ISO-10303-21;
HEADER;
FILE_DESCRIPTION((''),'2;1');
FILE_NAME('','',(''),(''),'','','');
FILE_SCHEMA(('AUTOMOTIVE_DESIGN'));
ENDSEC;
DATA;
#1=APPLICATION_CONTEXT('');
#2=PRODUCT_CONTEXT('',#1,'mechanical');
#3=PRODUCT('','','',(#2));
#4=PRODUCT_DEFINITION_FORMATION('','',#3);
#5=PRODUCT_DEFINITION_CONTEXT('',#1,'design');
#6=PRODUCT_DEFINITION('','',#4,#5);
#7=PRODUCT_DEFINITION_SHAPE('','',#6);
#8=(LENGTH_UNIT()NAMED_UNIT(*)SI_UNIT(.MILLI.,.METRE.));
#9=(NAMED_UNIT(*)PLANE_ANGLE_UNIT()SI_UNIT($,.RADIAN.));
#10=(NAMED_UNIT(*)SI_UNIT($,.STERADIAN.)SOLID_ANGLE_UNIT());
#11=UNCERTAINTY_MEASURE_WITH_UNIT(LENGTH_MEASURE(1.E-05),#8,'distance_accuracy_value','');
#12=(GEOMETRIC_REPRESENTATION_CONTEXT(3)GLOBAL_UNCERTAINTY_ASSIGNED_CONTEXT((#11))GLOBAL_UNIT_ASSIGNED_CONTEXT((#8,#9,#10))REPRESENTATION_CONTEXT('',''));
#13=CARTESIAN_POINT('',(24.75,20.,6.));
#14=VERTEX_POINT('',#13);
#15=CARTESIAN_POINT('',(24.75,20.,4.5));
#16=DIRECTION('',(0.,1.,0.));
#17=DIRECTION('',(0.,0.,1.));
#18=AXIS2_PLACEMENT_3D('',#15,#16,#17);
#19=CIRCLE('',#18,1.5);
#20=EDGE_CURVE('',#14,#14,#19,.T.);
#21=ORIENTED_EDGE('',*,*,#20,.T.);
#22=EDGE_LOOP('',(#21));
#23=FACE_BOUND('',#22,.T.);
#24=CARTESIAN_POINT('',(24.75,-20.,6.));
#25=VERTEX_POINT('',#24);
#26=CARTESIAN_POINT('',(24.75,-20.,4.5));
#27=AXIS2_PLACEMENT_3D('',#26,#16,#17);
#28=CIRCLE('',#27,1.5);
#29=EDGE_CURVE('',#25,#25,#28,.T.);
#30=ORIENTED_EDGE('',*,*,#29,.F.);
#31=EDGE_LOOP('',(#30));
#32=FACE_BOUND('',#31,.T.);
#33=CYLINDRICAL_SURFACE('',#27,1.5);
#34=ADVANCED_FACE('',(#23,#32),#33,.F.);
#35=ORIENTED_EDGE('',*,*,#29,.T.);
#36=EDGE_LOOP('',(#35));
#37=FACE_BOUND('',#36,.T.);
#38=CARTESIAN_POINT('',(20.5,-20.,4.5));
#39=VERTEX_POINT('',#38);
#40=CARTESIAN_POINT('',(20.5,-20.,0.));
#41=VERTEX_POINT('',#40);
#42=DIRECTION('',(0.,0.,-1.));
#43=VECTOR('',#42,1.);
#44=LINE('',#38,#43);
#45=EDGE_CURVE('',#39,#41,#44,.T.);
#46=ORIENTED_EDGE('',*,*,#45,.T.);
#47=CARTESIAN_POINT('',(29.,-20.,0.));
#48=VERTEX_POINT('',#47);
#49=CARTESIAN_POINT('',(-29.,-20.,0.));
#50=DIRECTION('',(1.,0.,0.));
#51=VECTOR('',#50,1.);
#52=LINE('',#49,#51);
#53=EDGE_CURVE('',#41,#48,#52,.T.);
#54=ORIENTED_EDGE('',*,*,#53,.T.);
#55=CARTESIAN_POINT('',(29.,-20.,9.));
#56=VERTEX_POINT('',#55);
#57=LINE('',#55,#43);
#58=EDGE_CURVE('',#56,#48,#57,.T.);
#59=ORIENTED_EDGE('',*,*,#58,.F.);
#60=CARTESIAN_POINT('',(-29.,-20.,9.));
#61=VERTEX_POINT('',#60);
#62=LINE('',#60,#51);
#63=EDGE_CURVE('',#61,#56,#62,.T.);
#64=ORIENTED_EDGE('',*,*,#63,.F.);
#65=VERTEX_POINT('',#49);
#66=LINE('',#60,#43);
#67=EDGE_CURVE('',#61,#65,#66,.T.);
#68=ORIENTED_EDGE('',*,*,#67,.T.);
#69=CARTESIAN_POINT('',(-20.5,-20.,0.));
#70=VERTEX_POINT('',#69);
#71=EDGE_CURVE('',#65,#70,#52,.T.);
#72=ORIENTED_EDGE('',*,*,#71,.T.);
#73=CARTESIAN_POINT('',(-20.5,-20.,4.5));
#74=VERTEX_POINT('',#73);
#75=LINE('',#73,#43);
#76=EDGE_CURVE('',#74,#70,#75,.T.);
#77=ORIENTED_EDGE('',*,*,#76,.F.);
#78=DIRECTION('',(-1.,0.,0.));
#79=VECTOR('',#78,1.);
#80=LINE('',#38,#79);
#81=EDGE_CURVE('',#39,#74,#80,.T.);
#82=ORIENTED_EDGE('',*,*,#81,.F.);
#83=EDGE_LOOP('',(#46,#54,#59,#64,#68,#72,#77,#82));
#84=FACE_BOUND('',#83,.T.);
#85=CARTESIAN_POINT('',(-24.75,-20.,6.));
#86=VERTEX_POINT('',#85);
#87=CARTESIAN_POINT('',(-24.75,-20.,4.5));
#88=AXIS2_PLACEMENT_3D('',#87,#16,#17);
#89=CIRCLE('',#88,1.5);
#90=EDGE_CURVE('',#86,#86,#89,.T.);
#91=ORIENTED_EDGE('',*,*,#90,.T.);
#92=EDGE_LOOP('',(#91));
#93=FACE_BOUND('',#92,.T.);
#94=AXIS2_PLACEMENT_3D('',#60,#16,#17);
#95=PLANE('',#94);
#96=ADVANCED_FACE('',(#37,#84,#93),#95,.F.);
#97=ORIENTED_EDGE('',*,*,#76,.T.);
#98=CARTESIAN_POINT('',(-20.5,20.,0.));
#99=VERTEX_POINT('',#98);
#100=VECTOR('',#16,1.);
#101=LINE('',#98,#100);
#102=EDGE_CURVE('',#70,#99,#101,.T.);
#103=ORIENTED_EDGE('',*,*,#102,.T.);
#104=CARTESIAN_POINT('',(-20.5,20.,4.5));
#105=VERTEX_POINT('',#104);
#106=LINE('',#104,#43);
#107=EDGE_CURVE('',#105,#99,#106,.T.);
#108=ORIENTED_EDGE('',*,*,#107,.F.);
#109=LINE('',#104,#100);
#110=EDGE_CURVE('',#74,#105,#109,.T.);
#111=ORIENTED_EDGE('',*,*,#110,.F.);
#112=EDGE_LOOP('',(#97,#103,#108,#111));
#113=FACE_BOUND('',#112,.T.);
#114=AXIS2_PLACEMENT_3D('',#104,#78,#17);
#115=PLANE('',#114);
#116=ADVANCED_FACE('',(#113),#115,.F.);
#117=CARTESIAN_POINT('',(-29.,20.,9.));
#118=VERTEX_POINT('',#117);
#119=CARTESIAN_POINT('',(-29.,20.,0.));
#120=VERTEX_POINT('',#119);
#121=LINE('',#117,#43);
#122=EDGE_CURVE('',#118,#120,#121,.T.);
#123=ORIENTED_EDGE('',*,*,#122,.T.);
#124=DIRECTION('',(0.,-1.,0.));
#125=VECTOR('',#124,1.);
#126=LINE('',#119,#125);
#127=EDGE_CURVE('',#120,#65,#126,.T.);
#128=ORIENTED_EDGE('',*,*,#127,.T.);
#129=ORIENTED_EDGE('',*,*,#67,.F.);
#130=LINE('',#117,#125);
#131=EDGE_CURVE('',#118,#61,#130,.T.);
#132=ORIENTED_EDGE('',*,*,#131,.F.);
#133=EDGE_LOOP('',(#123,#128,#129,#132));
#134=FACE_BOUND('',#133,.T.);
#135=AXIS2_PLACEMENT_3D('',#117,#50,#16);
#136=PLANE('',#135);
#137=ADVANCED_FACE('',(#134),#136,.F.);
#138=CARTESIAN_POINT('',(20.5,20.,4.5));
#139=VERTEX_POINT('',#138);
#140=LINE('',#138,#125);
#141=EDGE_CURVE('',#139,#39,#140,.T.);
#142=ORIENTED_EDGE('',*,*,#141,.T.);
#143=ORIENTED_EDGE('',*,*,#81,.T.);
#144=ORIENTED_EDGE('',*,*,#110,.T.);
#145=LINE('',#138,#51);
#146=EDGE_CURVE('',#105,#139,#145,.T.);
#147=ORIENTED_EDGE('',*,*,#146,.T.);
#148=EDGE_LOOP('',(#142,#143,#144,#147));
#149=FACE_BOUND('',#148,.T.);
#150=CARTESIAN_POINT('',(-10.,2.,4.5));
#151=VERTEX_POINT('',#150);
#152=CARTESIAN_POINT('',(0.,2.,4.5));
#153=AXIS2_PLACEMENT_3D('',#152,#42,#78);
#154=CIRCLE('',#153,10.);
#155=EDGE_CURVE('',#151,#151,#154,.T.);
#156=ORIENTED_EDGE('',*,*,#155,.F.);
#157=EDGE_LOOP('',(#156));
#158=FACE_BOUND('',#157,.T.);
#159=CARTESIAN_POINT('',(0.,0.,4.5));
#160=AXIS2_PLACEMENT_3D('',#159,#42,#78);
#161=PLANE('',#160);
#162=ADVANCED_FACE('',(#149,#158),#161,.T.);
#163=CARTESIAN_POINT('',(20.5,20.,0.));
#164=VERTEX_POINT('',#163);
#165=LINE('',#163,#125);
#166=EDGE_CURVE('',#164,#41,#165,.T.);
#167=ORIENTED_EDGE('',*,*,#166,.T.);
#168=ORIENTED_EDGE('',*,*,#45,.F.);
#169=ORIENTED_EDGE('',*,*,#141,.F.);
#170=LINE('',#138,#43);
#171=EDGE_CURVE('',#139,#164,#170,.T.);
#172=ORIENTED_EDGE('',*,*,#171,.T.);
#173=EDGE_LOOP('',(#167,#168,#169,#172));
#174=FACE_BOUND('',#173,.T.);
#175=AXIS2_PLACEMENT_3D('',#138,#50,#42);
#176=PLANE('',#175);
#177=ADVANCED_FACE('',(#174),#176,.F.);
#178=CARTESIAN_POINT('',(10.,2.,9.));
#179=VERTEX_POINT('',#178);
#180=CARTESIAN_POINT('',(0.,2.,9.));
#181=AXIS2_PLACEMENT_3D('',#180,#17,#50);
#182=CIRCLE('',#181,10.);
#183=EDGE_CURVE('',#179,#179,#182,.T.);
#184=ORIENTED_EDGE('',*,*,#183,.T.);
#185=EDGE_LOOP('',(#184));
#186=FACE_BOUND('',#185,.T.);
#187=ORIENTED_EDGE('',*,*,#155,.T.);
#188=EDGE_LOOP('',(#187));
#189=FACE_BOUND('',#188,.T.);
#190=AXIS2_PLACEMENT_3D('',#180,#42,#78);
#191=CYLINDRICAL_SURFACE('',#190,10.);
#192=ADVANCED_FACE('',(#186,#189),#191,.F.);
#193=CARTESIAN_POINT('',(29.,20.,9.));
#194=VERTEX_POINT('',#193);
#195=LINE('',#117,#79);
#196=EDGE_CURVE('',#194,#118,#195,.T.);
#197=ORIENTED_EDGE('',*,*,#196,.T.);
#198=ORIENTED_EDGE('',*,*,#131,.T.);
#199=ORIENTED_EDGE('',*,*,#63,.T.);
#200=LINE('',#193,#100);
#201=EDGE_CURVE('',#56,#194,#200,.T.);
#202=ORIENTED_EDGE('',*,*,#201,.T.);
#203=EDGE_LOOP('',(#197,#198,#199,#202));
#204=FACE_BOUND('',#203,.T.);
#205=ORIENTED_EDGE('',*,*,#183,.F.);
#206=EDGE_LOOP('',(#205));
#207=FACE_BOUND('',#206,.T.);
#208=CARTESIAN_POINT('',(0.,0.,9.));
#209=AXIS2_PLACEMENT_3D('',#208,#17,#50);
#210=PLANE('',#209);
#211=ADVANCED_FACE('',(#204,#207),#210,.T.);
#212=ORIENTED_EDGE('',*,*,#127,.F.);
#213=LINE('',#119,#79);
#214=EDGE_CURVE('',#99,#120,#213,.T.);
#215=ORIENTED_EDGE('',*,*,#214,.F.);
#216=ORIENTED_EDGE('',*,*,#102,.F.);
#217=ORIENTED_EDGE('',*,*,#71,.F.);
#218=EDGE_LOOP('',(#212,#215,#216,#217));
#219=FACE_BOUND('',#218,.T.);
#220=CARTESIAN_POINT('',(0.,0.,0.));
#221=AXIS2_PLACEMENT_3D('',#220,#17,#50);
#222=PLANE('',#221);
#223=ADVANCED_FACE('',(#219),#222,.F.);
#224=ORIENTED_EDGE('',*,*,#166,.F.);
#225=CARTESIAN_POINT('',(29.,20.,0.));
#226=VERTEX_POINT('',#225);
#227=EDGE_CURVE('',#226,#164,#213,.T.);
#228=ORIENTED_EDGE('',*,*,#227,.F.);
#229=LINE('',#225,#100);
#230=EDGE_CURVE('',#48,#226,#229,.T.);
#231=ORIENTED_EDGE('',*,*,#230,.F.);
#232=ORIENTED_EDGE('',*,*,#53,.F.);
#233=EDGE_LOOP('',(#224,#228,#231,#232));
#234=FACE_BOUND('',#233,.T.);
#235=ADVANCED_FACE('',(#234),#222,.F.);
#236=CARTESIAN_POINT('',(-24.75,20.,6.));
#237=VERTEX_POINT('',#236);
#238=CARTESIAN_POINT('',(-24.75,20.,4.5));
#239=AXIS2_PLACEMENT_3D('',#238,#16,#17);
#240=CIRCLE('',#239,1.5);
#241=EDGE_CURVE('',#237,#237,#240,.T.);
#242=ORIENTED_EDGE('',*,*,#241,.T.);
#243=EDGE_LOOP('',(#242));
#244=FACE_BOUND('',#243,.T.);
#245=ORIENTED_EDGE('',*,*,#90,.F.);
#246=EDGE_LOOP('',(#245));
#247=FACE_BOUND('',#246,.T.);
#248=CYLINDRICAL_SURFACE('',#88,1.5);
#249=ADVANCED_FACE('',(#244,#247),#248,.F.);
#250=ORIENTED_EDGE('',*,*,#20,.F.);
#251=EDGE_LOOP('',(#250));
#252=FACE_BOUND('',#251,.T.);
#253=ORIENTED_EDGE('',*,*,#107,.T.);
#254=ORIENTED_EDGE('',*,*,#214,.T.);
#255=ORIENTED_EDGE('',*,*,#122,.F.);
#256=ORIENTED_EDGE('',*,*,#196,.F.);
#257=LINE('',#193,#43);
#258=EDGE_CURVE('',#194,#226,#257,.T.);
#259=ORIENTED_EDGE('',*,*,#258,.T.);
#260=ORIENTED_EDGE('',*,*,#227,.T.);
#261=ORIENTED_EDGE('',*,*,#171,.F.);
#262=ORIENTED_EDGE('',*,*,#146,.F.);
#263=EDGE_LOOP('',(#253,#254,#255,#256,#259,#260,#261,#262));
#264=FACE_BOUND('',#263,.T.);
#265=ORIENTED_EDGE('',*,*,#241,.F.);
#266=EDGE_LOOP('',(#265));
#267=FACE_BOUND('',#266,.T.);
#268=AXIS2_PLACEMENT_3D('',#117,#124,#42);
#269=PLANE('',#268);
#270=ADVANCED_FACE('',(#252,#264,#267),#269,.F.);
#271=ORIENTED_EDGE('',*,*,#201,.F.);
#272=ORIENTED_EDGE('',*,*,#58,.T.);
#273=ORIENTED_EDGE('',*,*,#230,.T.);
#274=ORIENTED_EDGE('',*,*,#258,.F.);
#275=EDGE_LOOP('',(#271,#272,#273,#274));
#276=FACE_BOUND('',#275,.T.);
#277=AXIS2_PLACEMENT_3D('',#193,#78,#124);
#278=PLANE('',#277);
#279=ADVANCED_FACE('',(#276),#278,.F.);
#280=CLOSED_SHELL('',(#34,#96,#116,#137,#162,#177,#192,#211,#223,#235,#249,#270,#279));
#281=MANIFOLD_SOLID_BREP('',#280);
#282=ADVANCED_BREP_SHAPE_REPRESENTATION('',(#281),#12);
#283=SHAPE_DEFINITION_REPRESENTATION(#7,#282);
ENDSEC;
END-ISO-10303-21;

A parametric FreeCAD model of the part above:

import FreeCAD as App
import Part
import Sketcher

V = App.Vector

doc = App.newDocument("Part")
body = doc.addObject("PartDesign::Body", "Body")

sketch1 = doc.addObject("Sketcher::SketchObject", "Sketch")
body.addObject(sketch1)
sketch1.AttachmentSupport = (doc.XY_Plane, [""])
sketch1.MapMode = "FlatFace"
sketch1.addGeometry([
    Part.LineSegment(V(-29, 20, 0), V(-29, -20, 0)),
    Part.LineSegment(V(-29, -20, 0), V(29, -20, 0)),
    Part.LineSegment(V(29, -20, 0), V(29, 20, 0)),
    Part.LineSegment(V(29, 20, 0), V(-29, 20, 0)),
    Part.Circle(V(0, 2, 0), V(0, 0, 1), 10),
], False)
sketch1.addConstraint([
    Sketcher.Constraint("Coincident", 0, 2, 1, 1),
    Sketcher.Constraint("Coincident", 1, 2, 2, 1),
    Sketcher.Constraint("Coincident", 2, 2, 3, 1),
    Sketcher.Constraint("Coincident", 3, 2, 0, 1),
    Sketcher.Constraint("Vertical", 0),
    Sketcher.Constraint("Horizontal", 1),
    Sketcher.Constraint("Vertical", 2),
    Sketcher.Constraint("Horizontal", 3),
    Sketcher.Constraint("Symmetric", 0, 2, 2, 2, -1, 1),
    Sketcher.Constraint("PointOnObject", 4, 3, -2),
    Sketcher.Constraint("Diameter", 4, 20.0),
    Sketcher.Constraint("DistanceX", 1, 1, 1, 2, 58.0),
    Sketcher.Constraint("DistanceY", 0, 2, 0, 1, 40.0),
    Sketcher.Constraint("DistanceY", -1, 1, 4, 3, 2.0),
])
pad1 = doc.addObject("PartDesign::Pad", "Pad")
body.addObject(pad1)
pad1.Profile = sketch1
pad1.Length = 9

sketch2 = doc.addObject("Sketcher::SketchObject", "Sketch001")
body.addObject(sketch2)
sketch2.AttachmentSupport = (doc.XY_Plane, [""])
sketch2.MapMode = "FlatFace"
sketch2.addGeometry([
    Part.LineSegment(V(20, 20, 0), V(20, -20, 0)),
    Part.LineSegment(V(20, -20, 0), V(-20, -20, 0)),
    Part.LineSegment(V(-20, -20, 0), V(-20, 20, 0)),
    Part.LineSegment(V(-20, 20, 0), V(20, 20, 0)),
], False)
sketch2.addConstraint([
    Sketcher.Constraint("Coincident", 0, 2, 1, 1),
    Sketcher.Constraint("Coincident", 1, 2, 2, 1),
    Sketcher.Constraint("Coincident", 2, 2, 3, 1),
    Sketcher.Constraint("Coincident", 3, 2, 0, 1),
    Sketcher.Constraint("Vertical", 0),
    Sketcher.Constraint("Horizontal", 1),
    Sketcher.Constraint("Vertical", 2),
    Sketcher.Constraint("Horizontal", 3),
    Sketcher.Constraint("Symmetric", 0, 2, 2, 2, -1, 1),
    Sketcher.Constraint("DistanceX", 1, 2, 1, 1, 41.0),
    Sketcher.Constraint("DistanceY", 0, 2, 0, 1, 40.0),
])
pocket1 = doc.addObject("PartDesign::Pocket", "Pocket")
body.addObject(pocket1)
pocket1.Profile = sketch2
pocket1.Length = 4.5
pocket1.Reversed = True

sketch3 = doc.addObject("Sketcher::SketchObject", "Sketch002")
body.addObject(sketch3)
sketch3.AttachmentSupport = (doc.XZ_Plane, [""])
sketch3.MapMode = "FlatFace"
sketch3.AttachmentOffset = App.Placement(V(0, 0, -20), App.Rotation())
sketch3.addGeometry([
    Part.Circle(V(24.8, 4.5, 0), V(0, 0, 1), 1.5),
    Part.Circle(V(-24.8, 4.5, 0), V(0, 0, 1), 1.5),
], False)
sketch3.addConstraint([
    Sketcher.Constraint("Equal", 0, 1),
    Sketcher.Constraint("Symmetric", 0, 3, 1, 3, -2),
    Sketcher.Constraint("Diameter", 0, 3.0),
    Sketcher.Constraint("DistanceY", -1, 1, 0, 3, 4.5),
    Sketcher.Constraint("DistanceX", 1, 3, 0, 3, 49.5),
])
pocket2 = doc.addObject("PartDesign::Pocket", "Pocket001")
body.addObject(pocket2)
pocket2.Profile = sketch3
pocket2.Type = "ThroughAll"
pocket2.Reversed = True

doc.recompute()
